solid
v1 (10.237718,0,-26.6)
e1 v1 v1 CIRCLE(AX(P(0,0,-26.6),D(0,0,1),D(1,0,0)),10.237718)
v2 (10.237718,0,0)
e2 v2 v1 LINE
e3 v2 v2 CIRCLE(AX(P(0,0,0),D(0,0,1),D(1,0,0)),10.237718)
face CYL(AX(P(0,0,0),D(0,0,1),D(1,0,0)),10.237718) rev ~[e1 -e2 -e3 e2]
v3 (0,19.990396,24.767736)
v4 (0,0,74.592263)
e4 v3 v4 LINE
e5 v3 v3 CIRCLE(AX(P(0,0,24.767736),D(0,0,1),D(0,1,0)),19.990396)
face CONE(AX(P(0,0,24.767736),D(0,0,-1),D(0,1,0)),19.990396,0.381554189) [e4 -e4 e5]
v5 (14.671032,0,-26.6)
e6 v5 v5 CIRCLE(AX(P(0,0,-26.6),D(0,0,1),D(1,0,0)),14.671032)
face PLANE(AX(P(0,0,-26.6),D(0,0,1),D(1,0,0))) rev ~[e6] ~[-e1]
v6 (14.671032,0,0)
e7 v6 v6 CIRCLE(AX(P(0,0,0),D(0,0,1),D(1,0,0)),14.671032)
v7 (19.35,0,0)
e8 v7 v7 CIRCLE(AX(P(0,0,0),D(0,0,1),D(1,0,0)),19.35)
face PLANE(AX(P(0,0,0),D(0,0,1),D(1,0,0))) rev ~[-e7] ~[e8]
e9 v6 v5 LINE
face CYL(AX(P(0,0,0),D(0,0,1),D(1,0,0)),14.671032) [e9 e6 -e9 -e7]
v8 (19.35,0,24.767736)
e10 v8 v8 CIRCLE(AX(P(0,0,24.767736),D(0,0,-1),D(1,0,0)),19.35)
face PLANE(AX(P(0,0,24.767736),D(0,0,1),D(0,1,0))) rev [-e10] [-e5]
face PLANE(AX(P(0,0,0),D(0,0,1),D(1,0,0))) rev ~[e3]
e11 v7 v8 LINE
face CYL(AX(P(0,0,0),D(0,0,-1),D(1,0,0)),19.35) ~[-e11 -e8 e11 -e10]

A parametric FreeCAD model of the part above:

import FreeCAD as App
import Part
import Sketcher
from FreeCAD import Vector

doc = App.newDocument("Part")
body = doc.addObject("PartDesign::Body", "Body")

# Sketch on XY plane
sketch1 = doc.addObject("Sketcher::SketchObject", "Sketch")
body.addObject(sketch1)
sketch1.AttachmentSupport = (doc.XY_Plane, [""])
sketch1.MapMode = "FlatFace"
sketch1.addGeometry(Part.Circle(Vector(0, 0, 0), Vector(0, 0, 1), 19.35), False)
sketch1.addConstraint([
    Sketcher.Constraint("Coincident", 0, 3, -1, 1),
    Sketcher.Constraint("Diameter", 0, 38.7),
])
pad1 = doc.addObject("PartDesign::Pad", "Pad")
body.addObject(pad1)
pad1.Profile = sketch1
pad1.Length = 25

# Sketch on YZ plane
sketch2 = doc.addObject("Sketcher::SketchObject", "Sketch001")
body.addObject(sketch2)
sketch2.AttachmentSupport = (doc.YZ_Plane, [""])
sketch2.MapMode = "FlatFace"
sketch2.addGeometry([
    Part.LineSegment(Vector(0, 24.767736, 0), Vector(19.990396, 24.767736, 0)),
    Part.LineSegment(Vector(19.990396, 24.767736, 0), Vector(0, 74.592263, 0)),
    Part.LineSegment(Vector(0, 74.592263, 0), Vector(0, 24.767736, 0)),
], False)
sketch2.addConstraint([
    Sketcher.Constraint("Coincident", 0, 2, 1, 1),
    Sketcher.Constraint("Coincident", 1, 2, 2, 1),
    Sketcher.Constraint("Coincident", 2, 2, 0, 1),
    Sketcher.Constraint("Horizontal", 0),
    Sketcher.Constraint("Vertical", 2),
    Sketcher.Constraint("PointOnObject", 1, 2, -2),
    Sketcher.Constraint("Distance", 1, 53.685188),
    Sketcher.Constraint("DistanceX", 0, 1, 0, 2, 19.990396),
    Sketcher.Constraint("DistanceY", -1, 1, 0, 2, 24.767736),
])
revolution = doc.addObject("PartDesign::Revolution", "Revolution")
body.addObject(revolution)
revolution.Profile = sketch2
revolution.ReferenceAxis = (sketch2, ["V_Axis"])
revolution.Angle = 360

# Sketch on XY plane
sketch3 = doc.addObject("Sketcher::SketchObject", "Sketch002")
body.addObject(sketch3)
sketch3.AttachmentSupport = (doc.XY_Plane, [""])
sketch3.MapMode = "FlatFace"
sketch3.addGeometry([
    Part.Circle(Vector(0, 0, 0), Vector(0, 0, 1), 14.671032),
    Part.Circle(Vector(0, 0, 0), Vector(0, 0, 1), 10.237718),
], False)
sketch3.addConstraint([
    Sketcher.Constraint("Coincident", 0, 3, -1, 1),
    Sketcher.Constraint("Coincident", 1, 3, -1, 1),
    Sketcher.Constraint("Diameter", 0, 29.342064),
    Sketcher.Constraint("Diameter", 1, 20.475436),
])
pad2 = doc.addObject("PartDesign::Pad", "Pad001")
body.addObject(pad2)
pad2.Profile = sketch3
pad2.Length = 26.6
pad2.Reversed = True

doc.recompute()
